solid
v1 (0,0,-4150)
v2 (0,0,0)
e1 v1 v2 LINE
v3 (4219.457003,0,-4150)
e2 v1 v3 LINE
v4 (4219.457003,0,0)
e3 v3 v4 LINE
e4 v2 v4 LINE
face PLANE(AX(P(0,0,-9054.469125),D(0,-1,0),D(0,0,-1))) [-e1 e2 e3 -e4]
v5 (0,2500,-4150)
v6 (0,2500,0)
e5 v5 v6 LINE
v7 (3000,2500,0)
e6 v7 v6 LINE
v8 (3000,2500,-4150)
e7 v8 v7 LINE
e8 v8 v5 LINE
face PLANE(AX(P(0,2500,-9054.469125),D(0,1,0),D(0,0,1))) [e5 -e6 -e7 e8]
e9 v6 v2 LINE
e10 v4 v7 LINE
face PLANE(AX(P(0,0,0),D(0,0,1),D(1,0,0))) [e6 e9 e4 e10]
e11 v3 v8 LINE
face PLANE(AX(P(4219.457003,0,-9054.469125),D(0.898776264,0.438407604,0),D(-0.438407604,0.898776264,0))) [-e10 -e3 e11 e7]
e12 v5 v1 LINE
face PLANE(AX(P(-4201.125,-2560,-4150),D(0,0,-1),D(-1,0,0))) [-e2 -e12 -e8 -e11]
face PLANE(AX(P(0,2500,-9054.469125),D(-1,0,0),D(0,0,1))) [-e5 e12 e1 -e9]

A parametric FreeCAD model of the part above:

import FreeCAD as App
import Part
import Sketcher

V = App.Vector
Q = App.Units.Quantity

doc = App.newDocument("Part")
body = doc.addObject("PartDesign::Body", "Body")

# Sketch on XY plane
sketch1 = doc.addObject("Sketcher::SketchObject", "Sketch")
body.addObject(sketch1)
sketch1.AttachmentSupport = (doc.XY_Plane, [""])
sketch1.MapMode = "FlatFace"
sketch1.addGeometry([
    Part.LineSegment(V(0, 0, 0), V(4219, 0, 0)),
    Part.LineSegment(V(4219, 0, 0), V(3000, 2500, 0)),
    Part.LineSegment(V(3000, 2500, 0), V(0, 2500, 0)),
    Part.LineSegment(V(0, 2500, 0), V(0, 0, 0)),
], False)
sketch1.addConstraint([
    Sketcher.Constraint("Coincident", 0, 2, 1, 1),
    Sketcher.Constraint("Coincident", 1, 2, 2, 1),
    Sketcher.Constraint("Coincident", 2, 2, 3, 1),
    Sketcher.Constraint("Coincident", 3, 2, 0, 1),
    Sketcher.Constraint("Horizontal", 0),
    Sketcher.Constraint("Horizontal", 2),
    Sketcher.Constraint("Vertical", 3),
    Sketcher.Constraint("Coincident", 3, 2, -1, 1),
    Sketcher.Constraint("DistanceX", 2, 2, 2, 1, Q("3000 mm")),
    Sketcher.Constraint("DistanceY", 3, 2, 3, 1, Q("2500 mm")),
    Sketcher.Constraint("DistanceX", 0, 1, 0, 2, Q("4219.457003 mm")),
])
pad1 = doc.addObject("PartDesign::Pad", "Pad")
body.addObject(pad1)
pad1.Profile = sketch1
pad1.Length = 4150
pad1.Reversed = True

doc.recompute()
